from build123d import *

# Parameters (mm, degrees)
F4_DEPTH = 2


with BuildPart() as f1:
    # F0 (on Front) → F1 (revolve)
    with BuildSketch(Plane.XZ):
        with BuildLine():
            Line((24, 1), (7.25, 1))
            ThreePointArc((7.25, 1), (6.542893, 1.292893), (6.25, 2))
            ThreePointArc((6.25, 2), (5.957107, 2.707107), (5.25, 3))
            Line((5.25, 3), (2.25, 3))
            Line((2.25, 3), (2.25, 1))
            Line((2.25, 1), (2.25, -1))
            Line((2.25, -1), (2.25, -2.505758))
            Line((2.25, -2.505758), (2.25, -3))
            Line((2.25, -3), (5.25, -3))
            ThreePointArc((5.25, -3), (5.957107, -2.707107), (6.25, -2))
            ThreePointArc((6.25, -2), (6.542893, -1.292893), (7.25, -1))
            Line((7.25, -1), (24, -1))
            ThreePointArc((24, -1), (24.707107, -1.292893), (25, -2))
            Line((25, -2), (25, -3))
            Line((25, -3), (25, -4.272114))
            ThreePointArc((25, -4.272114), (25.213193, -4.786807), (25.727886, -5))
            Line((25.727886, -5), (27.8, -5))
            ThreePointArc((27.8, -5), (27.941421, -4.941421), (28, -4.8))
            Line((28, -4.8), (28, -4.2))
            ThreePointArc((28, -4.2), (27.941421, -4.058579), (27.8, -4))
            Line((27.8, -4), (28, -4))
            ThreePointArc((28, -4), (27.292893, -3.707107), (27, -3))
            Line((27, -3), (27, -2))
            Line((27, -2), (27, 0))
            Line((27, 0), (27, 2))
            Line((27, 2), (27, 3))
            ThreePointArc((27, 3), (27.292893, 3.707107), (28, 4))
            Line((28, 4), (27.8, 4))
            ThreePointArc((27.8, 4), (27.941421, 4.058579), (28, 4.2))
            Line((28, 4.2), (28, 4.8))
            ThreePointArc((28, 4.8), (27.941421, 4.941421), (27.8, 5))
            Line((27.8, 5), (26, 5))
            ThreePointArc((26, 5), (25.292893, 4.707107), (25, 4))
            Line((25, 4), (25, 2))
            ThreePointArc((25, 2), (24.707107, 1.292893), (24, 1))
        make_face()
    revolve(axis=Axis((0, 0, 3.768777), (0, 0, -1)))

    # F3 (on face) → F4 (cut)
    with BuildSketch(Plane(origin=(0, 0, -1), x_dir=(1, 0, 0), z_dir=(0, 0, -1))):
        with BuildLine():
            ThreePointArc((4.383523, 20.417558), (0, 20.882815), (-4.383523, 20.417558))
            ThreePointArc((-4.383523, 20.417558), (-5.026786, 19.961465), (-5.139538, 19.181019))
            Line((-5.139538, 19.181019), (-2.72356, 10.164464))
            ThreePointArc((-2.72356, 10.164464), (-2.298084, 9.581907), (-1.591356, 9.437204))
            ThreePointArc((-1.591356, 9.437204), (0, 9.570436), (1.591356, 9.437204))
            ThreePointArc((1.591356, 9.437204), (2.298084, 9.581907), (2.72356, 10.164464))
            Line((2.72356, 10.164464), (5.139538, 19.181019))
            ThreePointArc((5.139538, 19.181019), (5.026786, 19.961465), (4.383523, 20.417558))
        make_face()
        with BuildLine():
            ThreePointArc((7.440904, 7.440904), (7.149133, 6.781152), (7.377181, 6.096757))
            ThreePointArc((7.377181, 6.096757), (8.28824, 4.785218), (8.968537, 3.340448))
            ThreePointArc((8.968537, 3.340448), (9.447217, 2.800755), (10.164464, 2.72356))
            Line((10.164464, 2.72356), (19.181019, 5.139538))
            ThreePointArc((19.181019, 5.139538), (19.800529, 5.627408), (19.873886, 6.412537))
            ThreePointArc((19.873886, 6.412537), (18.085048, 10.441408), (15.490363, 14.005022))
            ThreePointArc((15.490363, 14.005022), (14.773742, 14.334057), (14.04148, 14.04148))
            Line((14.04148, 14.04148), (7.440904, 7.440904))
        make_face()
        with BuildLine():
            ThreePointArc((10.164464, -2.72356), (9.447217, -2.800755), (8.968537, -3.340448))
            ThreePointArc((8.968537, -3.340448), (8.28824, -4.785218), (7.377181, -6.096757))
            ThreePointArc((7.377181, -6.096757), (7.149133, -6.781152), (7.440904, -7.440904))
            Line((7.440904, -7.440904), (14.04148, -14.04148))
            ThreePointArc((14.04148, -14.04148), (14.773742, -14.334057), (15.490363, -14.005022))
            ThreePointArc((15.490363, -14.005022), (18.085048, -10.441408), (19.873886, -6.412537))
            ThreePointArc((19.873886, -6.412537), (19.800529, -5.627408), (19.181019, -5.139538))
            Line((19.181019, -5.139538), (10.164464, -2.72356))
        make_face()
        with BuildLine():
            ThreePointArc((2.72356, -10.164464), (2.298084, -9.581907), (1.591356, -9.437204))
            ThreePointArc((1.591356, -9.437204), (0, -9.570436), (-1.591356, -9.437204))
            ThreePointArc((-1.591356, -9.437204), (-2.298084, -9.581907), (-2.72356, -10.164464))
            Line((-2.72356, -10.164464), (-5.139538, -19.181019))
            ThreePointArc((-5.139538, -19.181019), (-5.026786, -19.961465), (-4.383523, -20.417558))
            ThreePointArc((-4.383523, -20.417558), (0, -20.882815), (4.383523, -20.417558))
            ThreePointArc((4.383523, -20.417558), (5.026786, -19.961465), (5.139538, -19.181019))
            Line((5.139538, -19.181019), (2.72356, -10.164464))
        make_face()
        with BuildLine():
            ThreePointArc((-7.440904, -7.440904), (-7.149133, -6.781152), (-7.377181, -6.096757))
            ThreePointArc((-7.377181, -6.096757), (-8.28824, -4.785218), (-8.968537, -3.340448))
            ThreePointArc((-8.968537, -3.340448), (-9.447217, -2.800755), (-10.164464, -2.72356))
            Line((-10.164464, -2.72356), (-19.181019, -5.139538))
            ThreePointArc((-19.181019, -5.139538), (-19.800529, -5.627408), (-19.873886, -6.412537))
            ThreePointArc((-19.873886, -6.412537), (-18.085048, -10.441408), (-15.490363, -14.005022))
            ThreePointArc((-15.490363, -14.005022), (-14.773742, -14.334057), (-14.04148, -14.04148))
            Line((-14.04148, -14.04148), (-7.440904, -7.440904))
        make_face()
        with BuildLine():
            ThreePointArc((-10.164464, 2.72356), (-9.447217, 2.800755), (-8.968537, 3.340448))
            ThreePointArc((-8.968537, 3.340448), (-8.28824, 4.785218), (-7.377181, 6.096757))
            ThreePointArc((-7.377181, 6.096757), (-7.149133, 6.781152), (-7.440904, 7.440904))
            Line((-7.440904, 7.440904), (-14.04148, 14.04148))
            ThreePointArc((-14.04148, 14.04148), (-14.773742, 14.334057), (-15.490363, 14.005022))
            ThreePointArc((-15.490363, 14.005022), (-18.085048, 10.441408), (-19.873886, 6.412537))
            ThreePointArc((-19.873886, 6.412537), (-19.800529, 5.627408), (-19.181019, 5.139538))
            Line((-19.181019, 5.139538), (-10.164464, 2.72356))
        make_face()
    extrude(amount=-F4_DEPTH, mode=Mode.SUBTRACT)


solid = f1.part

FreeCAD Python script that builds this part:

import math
import FreeCAD as App
import Part
import Sketcher
Q = App.Units.Quantity

doc = App.newDocument("Part")
body = doc.addObject("PartDesign::Body", "Body")

sketch1 = body.newObject("Sketcher::SketchObject", "Sketch")
sketch1.AttachmentSupport = (doc.getObject("XZ_Plane"), [""])
sketch1.MapMode = "FlatFace"
sketch1.addGeometry([
    Part.LineSegment(App.Vector(24, 1, 0), App.Vector(7.25, 1, 0)),
    Part.ArcOfCircle(Part.Circle(App.Vector(7.25, 2, 0), App.Vector(0, 0, 1), 1), math.radians(180), math.radians(270)),
    Part.ArcOfCircle(Part.Circle(App.Vector(5.25, 2, 0), App.Vector(0, 0, 1), 1), math.radians(0), math.radians(90)),
    Part.LineSegment(App.Vector(5.25, 3, 0), App.Vector(2.25, 3, 0)),
    Part.LineSegment(App.Vector(2.25, 3, 0), App.Vector(2.25, -3, 0)),
    Part.LineSegment(App.Vector(2.25, -3, 0), App.Vector(5.25, -3, 0)),
    Part.ArcOfCircle(Part.Circle(App.Vector(5.25, -2, 0), App.Vector(0, 0, 1), 1), math.radians(-90), math.radians(0)),
    Part.ArcOfCircle(Part.Circle(App.Vector(7.25, -2, 0), App.Vector(0, 0, 1), 1), math.radians(90), math.radians(180)),
    Part.LineSegment(App.Vector(7.25, -1, 0), App.Vector(24, -1, 0)),
    Part.ArcOfCircle(Part.Circle(App.Vector(24, -2, 0), App.Vector(0, 0, 1), 1), math.radians(0), math.radians(90)),
    Part.LineSegment(App.Vector(25, -2, 0), App.Vector(25, -4.27, 0)),
    Part.ArcOfCircle(Part.Circle(App.Vector(25.73, -4.27, 0), App.Vector(0, 0, 1), 0.73), math.radians(-180), math.radians(-90)),
    Part.LineSegment(App.Vector(25.73, -5, 0), App.Vector(27.8, -5, 0)),
    Part.ArcOfCircle(Part.Circle(App.Vector(27.8, -4.8, 0), App.Vector(0, 0, 1), 0.2), math.radians(-90), math.radians(0)),
    Part.LineSegment(App.Vector(28, -4.8, 0), App.Vector(28, -4.2, 0)),
    Part.ArcOfCircle(Part.Circle(App.Vector(27.8, -4.2, 0), App.Vector(0, 0, 1), 0.2), math.radians(0), math.radians(90)),
    Part.LineSegment(App.Vector(27.8, -4, 0), App.Vector(28, -4, 0)),
    Part.ArcOfCircle(Part.Circle(App.Vector(28, -3, 0), App.Vector(0, 0, 1), 1), math.radians(180), math.radians(270)),
    Part.LineSegment(App.Vector(27, -3, 0), App.Vector(27, 3, 0)),
    Part.ArcOfCircle(Part.Circle(App.Vector(28, 3, 0), App.Vector(0, 0, 1), 1), math.radians(90), math.radians(180)),
    Part.LineSegment(App.Vector(28, 4, 0), App.Vector(27.8, 4, 0)),
    Part.ArcOfCircle(Part.Circle(App.Vector(27.8, 4.2, 0), App.Vector(0, 0, 1), 0.2), math.radians(-90), math.radians(0)),
    Part.LineSegment(App.Vector(28, 4.2, 0), App.Vector(28, 4.8, 0)),
    Part.ArcOfCircle(Part.Circle(App.Vector(27.8, 4.8, 0), App.Vector(0, 0, 1), 0.2), math.radians(0), math.radians(90)),
    Part.LineSegment(App.Vector(27.8, 5, 0), App.Vector(26, 5, 0)),
    Part.ArcOfCircle(Part.Circle(App.Vector(26, 4, 0), App.Vector(0, 0, 1), 1), math.radians(90), math.radians(180)),
    Part.LineSegment(App.Vector(25, 4, 0), App.Vector(25, 2, 0)),
    Part.ArcOfCircle(Part.Circle(App.Vector(24, 2, 0), App.Vector(0, 0, 1), 1), math.radians(-90), math.radians(0)),
], False)
sketch1.addConstraint([
    Sketcher.Constraint("Tangent", 0, 2, 1, 2),
    Sketcher.Constraint("Tangent", 1, 1, 2, 1),
    Sketcher.Constraint("Tangent", 2, 2, 3, 1),
    Sketcher.Constraint("Coincident", 3, 2, 4, 1),
    Sketcher.Constraint("Coincident", 4, 2, 5, 1),
    Sketcher.Constraint("Tangent", 5, 2, 6, 1),
    Sketcher.Constraint("Tangent", 6, 2, 7, 2),
    Sketcher.Constraint("Tangent", 7, 1, 8, 1),
    Sketcher.Constraint("Tangent", 8, 2, 9, 2),
    Sketcher.Constraint("Tangent", 9, 1, 10, 1),
    Sketcher.Constraint("Tangent", 10, 2, 11, 1),
    Sketcher.Constraint("Tangent", 11, 2, 12, 1),
    Sketcher.Constraint("Coincident", 12, 2, 13, 1),
    Sketcher.Constraint("Coincident", 13, 2, 14, 1),
    Sketcher.Constraint("Coincident", 14, 2, 15, 1),
    Sketcher.Constraint("Coincident", 15, 2, 16, 1),
    Sketcher.Constraint("Tangent", 16, 2, 17, 2),
    Sketcher.Constraint("Tangent", 17, 1, 18, 1),
    Sketcher.Constraint("Tangent", 18, 2, 19, 2),
    Sketcher.Constraint("Tangent", 19, 1, 20, 1),
    Sketcher.Constraint("Coincident", 20, 2, 21, 1),
    Sketcher.Constraint("Coincident", 21, 2, 22, 1),
    Sketcher.Constraint("Coincident", 22, 2, 23, 1),
    Sketcher.Constraint("Coincident", 23, 2, 24, 1),
    Sketcher.Constraint("Tangent", 24, 2, 25, 1),
    Sketcher.Constraint("Tangent", 25, 2, 26, 1),
    Sketcher.Constraint("Tangent", 26, 2, 27, 2),
    Sketcher.Constraint("Tangent", 27, 1, 0, 1),
    Sketcher.Constraint("Horizontal", 0),
    Sketcher.Constraint("Horizontal", 3),
    Sketcher.Constraint("Vertical", 4),
    Sketcher.Constraint("Horizontal", 5),
    Sketcher.Constraint("Horizontal", 8),
    Sketcher.Constraint("Vertical", 10),
    Sketcher.Constraint("Horizontal", 12),
    Sketcher.Constraint("Vertical", 14),
    Sketcher.Constraint("Horizontal", 16),
    Sketcher.Constraint("Vertical", 18),
    Sketcher.Constraint("Horizontal", 20),
    Sketcher.Constraint("Vertical", 22),
    Sketcher.Constraint("Horizontal", 24),
    Sketcher.Constraint("Vertical", 26),
    Sketcher.Constraint("Equal", 1, 2),
    Sketcher.Constraint("Equal", 2, 6),
    Sketcher.Constraint("Equal", 6, 7),
    Sketcher.Constraint("Equal", 7, 9),
    Sketcher.Constraint("Equal", 13, 15),
    Sketcher.Constraint("Equal", 9, 17),
    Sketcher.Constraint("Equal", 17, 19),
    Sketcher.Constraint("Equal", 15, 21),
    Sketcher.Constraint("Equal", 21, 23),
    Sketcher.Constraint("Equal", 19, 25),
    Sketcher.Constraint("Equal", 25, 27),
    Sketcher.Constraint("Symmetric", 2, 3, 6, 3, -1),
    Sketcher.Constraint("Symmetric", 15, 3, 21, 3, -1),
    Sketcher.Constraint("Symmetric", 9, 3, 27, 3, -1),
    Sketcher.Constraint("Symmetric", 12, 2, 23, 2, -1),
    Sketcher.Constraint("Horizontal", 1, 3, 2, 3),
    Sketcher.Constraint("Horizontal", 19, 3, 2, 2),
    Sketcher.Constraint("Horizontal", 15, 3, 14, 2),
    Sketcher.Constraint("Horizontal", 25, 3, 19, 1),
    Sketcher.Constraint("Horizontal", 23, 3, 22, 2),
    Sketcher.Constraint("Vertical", 23, 3, 12, 2),
    Sketcher.Constraint("Vertical", 19, 3, 13, 2),
    Sketcher.Constraint("Vertical", 12, 2, 15, 2),
    Sketcher.Constraint("Vertical", 15, 2, 20, 2),
    Sketcher.Constraint("Equal", 14, 22),
    Sketcher.Constraint("Radius", 1, 0.999999),
    Sketcher.Constraint("Radius", 13, 0.200001),
    Sketcher.Constraint("DistanceX", 3, 2, 3, 1, 3.0),
    Sketcher.Constraint("DistanceY", 4, 2, 4, 1, 6.0),
    Sketcher.Constraint("DistanceX", 24, 2, 24, 1, 1.8),
    Sketcher.Constraint("DistanceY", 14, 1, 14, 2, 0.6),
    Sketcher.Constraint("DistanceX", -1, 1, 9, 3, 24.000001),
    Sketcher.Constraint("DistanceX", 0, 2, 0, 1, 16.75),
    Sketcher.Constraint("Radius", 11, 0.727886),
])
revolution = body.newObject("PartDesign::Revolution", "Revolution")
revolution.Profile = sketch1
revolution.ReferenceAxis = (sketch1, ["V_Axis"])
revolution.Angle = 360

sketch2 = body.newObject("Sketcher::SketchObject", "Sketch001")
sketch2.AttachmentSupport = (doc.getObject("XY_Plane"), [""])
sketch2.MapMode = "FlatFace"
sketch2.AttachmentOffset = App.Placement(App.Vector(0, 0, -1), App.Rotation())
sketch2.addGeometry([
    Part.ArcOfCircle(Part.Circle(App.Vector(0, 0, 0), App.Vector(0, 0, 1), 20.9), math.radians(-102), math.radians(-78)),
    Part.ArcOfCircle(Part.Circle(App.Vector(-4.2, -19.4, 0), App.Vector(0, 0, 1), 1), math.radians(165), math.radians(258)),
    Part.LineSegment(App.Vector(-5.1, -19.2, 0), App.Vector(-2.7, -10.2, 0)),
    Part.ArcOfCircle(Part.Circle(App.Vector(-1.8, -10.4, 0), App.Vector(0, 0, 1), 1), math.radians(80), math.radians(165)),
    Part.ArcOfCircle(Part.Circle(App.Vector(0, 0, 0), App.Vector(0, 0, 1), 9.6), math.radians(-99.57), math.radians(-80.43)),
    Part.ArcOfCircle(Part.Circle(App.Vector(1.8, -10.4, 0), App.Vector(0, 0, 1), 1), math.radians(15), math.radians(100)),
    Part.LineSegment(App.Vector(2.7, -10.2, 0), App.Vector(5.1, -19.2, 0)),
    Part.ArcOfCircle(Part.Circle(App.Vector(4.2, -19.4, 0), App.Vector(0, 0, 1), 1), math.radians(-78), math.radians(15)),
    Part.ArcOfCircle(Part.Circle(App.Vector(8.1, -6.7, 0), App.Vector(0, 0, 1), 1), math.radians(140), math.radians(225)),
    Part.ArcOfCircle(Part.Circle(App.Vector(0, 0, 0), App.Vector(0, 0, 1), 9.6), math.radians(-39.57), math.radians(-20.43)),
    Part.ArcOfCircle(Part.Circle(App.Vector(9.9, -3.7, 0), App.Vector(0, 0, 1), 1), math.radians(75), math.radians(160)),
    Part.LineSegment(App.Vector(10.2, -2.7, 0), App.Vector(19.2, -5.1, 0)),
    Part.ArcOfCircle(Part.Circle(App.Vector(18.9, -6.1, 0), App.Vector(0, 0, 1), 1), math.radians(-18), math.radians(75)),
    Part.ArcOfCircle(Part.Circle(App.Vector(0, 0, 0), App.Vector(0, 0, 1), 20.9), math.radians(-42), math.radians(-18)),
    Part.ArcOfCircle(Part.Circle(App.Vector(14.7, -13.3, 0), App.Vector(0, 0, 1), 1), math.radians(-135), math.radians(-42)),
    Part.LineSegment(App.Vector(14, -14, 0), App.Vector(7.4, -7.4, 0)),
    Part.ArcOfCircle(Part.Circle(App.Vector(9.9, 3.7, 0), App.Vector(0, 0, 1), 1), math.radians(-160), math.radians(-75)),
    Part.ArcOfCircle(Part.Circle(App.Vector(0, 0, 0), App.Vector(0, 0, 1), 9.6), math.radians(20.43), math.radians(39.57)),
    Part.ArcOfCircle(Part.Circle(App.Vector(8.1, 6.7, 0), App.Vector(0, 0, 1), 1), math.radians(135), math.radians(220)),
    Part.LineSegment(App.Vector(7.4, 7.4, 0), App.Vector(14, 14, 0)),
    Part.ArcOfCircle(Part.Circle(App.Vector(14.7, 13.3, 0), App.Vector(0, 0, 1), 1), math.radians(42), math.radians(135)),
    Part.ArcOfCircle(Part.Circle(App.Vector(0, 0, 0), App.Vector(0, 0, 1), 20.9), math.radians(18), math.radians(42)),
    Part.ArcOfCircle(Part.Circle(App.Vector(18.9, 6.1, 0), App.Vector(0, 0, 1), 1), math.radians(-75), math.radians(18)),
    Part.LineSegment(App.Vector(19.2, 5.1, 0), App.Vector(10.2, 2.7, 0)),
    Part.ArcOfCircle(Part.Circle(App.Vector(1.8, 10.4, 0), App.Vector(0, 0, 1), 1), math.radians(-100), math.radians(-15)),
    Part.ArcOfCircle(Part.Circle(App.Vector(0, 0, 0), App.Vector(0, 0, 1), 9.6), math.radians(80.43), math.radians(99.57)),
    Part.ArcOfCircle(Part.Circle(App.Vector(-1.8, 10.4, 0), App.Vector(0, 0, 1), 1), math.radians(-165), math.radians(-80)),
    Part.LineSegment(App.Vector(-2.7, 10.2, 0), App.Vector(-5.1, 19.2, 0)),
    Part.ArcOfCircle(Part.Circle(App.Vector(-4.2, 19.4, 0), App.Vector(0, 0, 1), 1), math.radians(102), math.radians(195)),
    Part.ArcOfCircle(Part.Circle(App.Vector(0, 0, 0), App.Vector(0, 0, 1), 20.9), math.radians(78), math.radians(102)),
    Part.ArcOfCircle(Part.Circle(App.Vector(4.2, 19.4, 0), App.Vector(0, 0, 1), 1), math.radians(-15), math.radians(78)),
    Part.LineSegment(App.Vector(5.1, 19.2, 0), App.Vector(2.7, 10.2, 0)),
    Part.ArcOfCircle(Part.Circle(App.Vector(-8.1, 6.7, 0), App.Vector(0, 0, 1), 1), math.radians(-40), math.radians(45)),
    Part.ArcOfCircle(Part.Circle(App.Vector(0, 0, 0), App.Vector(0, 0, 1), 9.6), math.radians(140.43), math.radians(159.57)),
    Part.ArcOfCircle(Part.Circle(App.Vector(-9.9, 3.7, 0), App.Vector(0, 0, 1), 1), math.radians(-105), math.radians(-20)),
    Part.LineSegment(App.Vector(-10.2, 2.7, 0), App.Vector(-19.2, 5.1, 0)),
    Part.ArcOfCircle(Part.Circle(App.Vector(-18.9, 6.1, 0), App.Vector(0, 0, 1), 1), math.radians(162), math.radians(255)),
    Part.ArcOfCircle(Part.Circle(App.Vector(0, 0, 0), App.Vector(0, 0, 1), 20.9), math.radians(138), math.radians(162)),
    Part.ArcOfCircle(Part.Circle(App.Vector(-14.7, 13.3, 0), App.Vector(0, 0, 1), 1), math.radians(45), math.radians(138)),
    Part.LineSegment(App.Vector(-14, 14, 0), App.Vector(-7.4, 7.4, 0)),
    Part.ArcOfCircle(Part.Circle(App.Vector(-9.9, -3.7, 0), App.Vector(0, 0, 1), 1), math.radians(20), math.radians(105)),
    Part.ArcOfCircle(Part.Circle(App.Vector(0, 0, 0), App.Vector(0, 0, 1), 9.6), math.radians(-159.57), math.radians(-140.43)),
    Part.ArcOfCircle(Part.Circle(App.Vector(-8.1, -6.7, 0), App.Vector(0, 0, 1), 1), math.radians(-45), math.radians(40)),
    Part.LineSegment(App.Vector(-7.4, -7.4, 0), App.Vector(-14, -14, 0)),
    Part.ArcOfCircle(Part.Circle(App.Vector(-14.7, -13.3, 0), App.Vector(0, 0, 1), 1), math.radians(-138), math.radians(-45)),
    Part.ArcOfCircle(Part.Circle(App.Vector(0, 0, 0), App.Vector(0, 0, 1), 20.9), math.radians(-162), math.radians(-138)),
    Part.ArcOfCircle(Part.Circle(App.Vector(-18.9, -6.1, 0), App.Vector(0, 0, 1), 1), math.radians(105), math.radians(198)),
    Part.LineSegment(App.Vector(-19.2, -5.1, 0), App.Vector(-10.2, -2.7, 0)),
], False)
sketch2.addConstraint([
    Sketcher.Constraint("Tangent", 0, 1, 1, 2),
    Sketcher.Constraint("Tangent", 1, 1, 2, 1),
    Sketcher.Constraint("Tangent", 2, 2, 3, 2),
    Sketcher.Constraint("Tangent", 3, 1, 4, 1),
    Sketcher.Constraint("Tangent", 4, 2, 5, 2),
    Sketcher.Constraint("Tangent", 5, 1, 6, 1),
    Sketcher.Constraint("Tangent", 6, 2, 7, 2),
    Sketcher.Constraint("Tangent", 7, 1, 0, 2),
    Sketcher.Constraint("Tangent", 8, 1, 9, 1),
    Sketcher.Constraint("Tangent", 9, 2, 10, 2),
    Sketcher.Constraint("Tangent", 10, 1, 11, 1),
    Sketcher.Constraint("Tangent", 11, 2, 12, 2),
    Sketcher.Constraint("Tangent", 12, 1, 13, 2),
    Sketcher.Constraint("Tangent", 13, 1, 14, 2),
    Sketcher.Constraint("Tangent", 14, 1, 15, 1),
    Sketcher.Constraint("Tangent", 15, 2, 8, 2),
    Sketcher.Constraint("Tangent", 16, 1, 17, 1),
    Sketcher.Constraint("Tangent", 17, 2, 18, 2),
    Sketcher.Constraint("Tangent", 18, 1, 19, 1),
    Sketcher.Constraint("Tangent", 19, 2, 20, 2),
    Sketcher.Constraint("Tangent", 20, 1, 21, 2),
    Sketcher.Constraint("Tangent", 21, 1, 22, 2),
    Sketcher.Constraint("Tangent", 22, 1, 23, 1),
    Sketcher.Constraint("Tangent", 23, 2, 16, 2),
    Sketcher.Constraint("Tangent", 24, 1, 25, 1),
    Sketcher.Constraint("Tangent", 25, 2, 26, 2),
    Sketcher.Constraint("Tangent", 26, 1, 27, 1),
    Sketcher.Constraint("Tangent", 27, 2, 28, 2),
    Sketcher.Constraint("Tangent", 28, 1, 29, 2),
    Sketcher.Constraint("Tangent", 29, 1, 30, 2),
    Sketcher.Constraint("Tangent", 30, 1, 31, 1),
    Sketcher.Constraint("Tangent", 31, 2, 24, 2),
    Sketcher.Constraint("Tangent", 32, 1, 33, 1),
    Sketcher.Constraint("Tangent", 33, 2, 34, 2),
    Sketcher.Constraint("Tangent", 34, 1, 35, 1),
    Sketcher.Constraint("Tangent", 35, 2, 36, 2),
    Sketcher.Constraint("Tangent", 36, 1, 37, 2),
    Sketcher.Constraint("Tangent", 37, 1, 38, 2),
    Sketcher.Constraint("Tangent", 38, 1, 39, 1),
    Sketcher.Constraint("Tangent", 39, 2, 32, 2),
    Sketcher.Constraint("Tangent", 40, 1, 41, 1),
    Sketcher.Constraint("Tangent", 41, 2, 42, 2),
    Sketcher.Constraint("Tangent", 42, 1, 43, 1),
    Sketcher.Constraint("Tangent", 43, 2, 44, 2),
    Sketcher.Constraint("Tangent", 44, 1, 45, 2),
    Sketcher.Constraint("Tangent", 45, 1, 46, 2),
    Sketcher.Constraint("Tangent", 46, 1, 47, 1),
    Sketcher.Constraint("Tangent", 47, 2, 40, 2),
    Sketcher.Constraint("Equal", 1, 3),
    Sketcher.Constraint("Equal", 3, 5),
    Sketcher.Constraint("Equal", 5, 7),
    Sketcher.Constraint("Equal", 7, 8),
    Sketcher.Constraint("Equal", 8, 10),
    Sketcher.Constraint("Equal", 10, 12),
    Sketcher.Constraint("Equal", 12, 14),
    Sketcher.Constraint("Equal", 14, 16),
    Sketcher.Constraint("Equal", 9, 17),
    Sketcher.Constraint("Equal", 16, 18),
    Sketcher.Constraint("Equal", 18, 20),
    Sketcher.Constraint("Equal", 13, 21),
    Sketcher.Constraint("Equal", 20, 22),
    Sketcher.Constraint("Equal", 22, 24),
    Sketcher.Constraint("Equal", 4, 25),
    Sketcher.Constraint("Equal", 24, 26),
    Sketcher.Constraint("Equal", 26, 28),
    Sketcher.Constraint("Equal", 0, 29),
    Sketcher.Constraint("Equal", 28, 30),
    Sketcher.Constraint("Equal", 30, 32),
    Sketcher.Constraint("Equal", 17, 33),
    Sketcher.Constraint("Equal", 32, 34),
    Sketcher.Constraint("Equal", 34, 36),
    Sketcher.Constraint("Equal", 21, 37),
    Sketcher.Constraint("Equal", 36, 38),
    Sketcher.Constraint("Equal", 38, 40),
    Sketcher.Constraint("Equal", 33, 41),
    Sketcher.Constraint("Equal", 40, 42),
    Sketcher.Constraint("Equal", 42, 44),
    Sketcher.Constraint("Equal", 37, 45),
    Sketcher.Constraint("Equal", 44, 46),
    Sketcher.Constraint("Symmetric", 3, 3, 24, 3, -1, 1),
    Sketcher.Constraint("Symmetric", 5, 3, 26, 3, -1, 1),
    Sketcher.Constraint("Symmetric", 7, 3, 28, 3, -1, 1),
    Sketcher.Constraint("Symmetric", 1, 3, 30, 3, -1, 1),
    Sketcher.Constraint("Symmetric", 8, 3, 32, 3, -1, 1),
    Sketcher.Constraint("Symmetric", 10, 3, 34, 3, -1, 1),
    Sketcher.Constraint("Symmetric", 12, 3, 36, 3, -1, 1),
    Sketcher.Constraint("Symmetric", 14, 3, 38, 3, -1, 1),
    Sketcher.Constraint("Symmetric", 16, 3, 40, 3, -1, 1),
    Sketcher.Constraint("Symmetric", 18, 3, 42, 3, -1, 1),
    Sketcher.Constraint("Symmetric", 20, 3, 44, 3, -1, 1),
    Sketcher.Constraint("Symmetric", 22, 3, 46, 3, -1, 1),
    Sketcher.Constraint("Symmetric", 3, 3, 5, 3, -2),
    Sketcher.Constraint("Symmetric", 1, 3, 7, 3, -2),
    Sketcher.Constraint("Symmetric", 18, 3, 32, 3, -2),
    Sketcher.Constraint("Symmetric", 16, 3, 34, 3, -2),
    Sketcher.Constraint("Symmetric", 22, 3, 36, 3, -2),
    Sketcher.Constraint("Symmetric", 20, 3, 38, 3, -2),
    Sketcher.Constraint("Perpendicular", 2, 11),
    Sketcher.Constraint("Perpendicular", 15, 19),
    Sketcher.Constraint("Equal", 6, 11),
    Sketcher.Constraint("Equal", 11, 15),
    Sketcher.Constraint("Radius", 1, 0.999999),
    Sketcher.Constraint("Angle", 2, Q("75.000004 deg")),
    Sketcher.Constraint("Radius", 0, 20.8828),
    Sketcher.Constraint("Radius", 4, 9.570391),
    Sketcher.Constraint("Radius", 9, 9.570486),
    Sketcher.Constraint("Radius", 13, 20.882836),
    Sketcher.Constraint("DistanceX", -1, 1, 12, 3, 18.922199),
    Sketcher.Constraint("DistanceY", 1, 3, -1, 1, 19.439838),
    Sketcher.Constraint("DistanceX", -1, 1, 8, 3, 8.148011),
    Sketcher.Constraint("DistanceX", 1, 1, -1, 1, 5.139538),
    Sketcher.Constraint("DistanceX", 2, 2, -1, 1, 2.72356),
    Sketcher.Constraint("DistanceX", -1, 1, 8, 1, 7.377181),
    Sketcher.Constraint("DistanceY", 10, 1, -1, 1, 2.72356),
])
pocket1 = body.newObject("PartDesign::Pocket", "Pocket")
pocket1.Profile = sketch2
pocket1.Length = 2
pocket1.Reversed = True

doc.recompute()
